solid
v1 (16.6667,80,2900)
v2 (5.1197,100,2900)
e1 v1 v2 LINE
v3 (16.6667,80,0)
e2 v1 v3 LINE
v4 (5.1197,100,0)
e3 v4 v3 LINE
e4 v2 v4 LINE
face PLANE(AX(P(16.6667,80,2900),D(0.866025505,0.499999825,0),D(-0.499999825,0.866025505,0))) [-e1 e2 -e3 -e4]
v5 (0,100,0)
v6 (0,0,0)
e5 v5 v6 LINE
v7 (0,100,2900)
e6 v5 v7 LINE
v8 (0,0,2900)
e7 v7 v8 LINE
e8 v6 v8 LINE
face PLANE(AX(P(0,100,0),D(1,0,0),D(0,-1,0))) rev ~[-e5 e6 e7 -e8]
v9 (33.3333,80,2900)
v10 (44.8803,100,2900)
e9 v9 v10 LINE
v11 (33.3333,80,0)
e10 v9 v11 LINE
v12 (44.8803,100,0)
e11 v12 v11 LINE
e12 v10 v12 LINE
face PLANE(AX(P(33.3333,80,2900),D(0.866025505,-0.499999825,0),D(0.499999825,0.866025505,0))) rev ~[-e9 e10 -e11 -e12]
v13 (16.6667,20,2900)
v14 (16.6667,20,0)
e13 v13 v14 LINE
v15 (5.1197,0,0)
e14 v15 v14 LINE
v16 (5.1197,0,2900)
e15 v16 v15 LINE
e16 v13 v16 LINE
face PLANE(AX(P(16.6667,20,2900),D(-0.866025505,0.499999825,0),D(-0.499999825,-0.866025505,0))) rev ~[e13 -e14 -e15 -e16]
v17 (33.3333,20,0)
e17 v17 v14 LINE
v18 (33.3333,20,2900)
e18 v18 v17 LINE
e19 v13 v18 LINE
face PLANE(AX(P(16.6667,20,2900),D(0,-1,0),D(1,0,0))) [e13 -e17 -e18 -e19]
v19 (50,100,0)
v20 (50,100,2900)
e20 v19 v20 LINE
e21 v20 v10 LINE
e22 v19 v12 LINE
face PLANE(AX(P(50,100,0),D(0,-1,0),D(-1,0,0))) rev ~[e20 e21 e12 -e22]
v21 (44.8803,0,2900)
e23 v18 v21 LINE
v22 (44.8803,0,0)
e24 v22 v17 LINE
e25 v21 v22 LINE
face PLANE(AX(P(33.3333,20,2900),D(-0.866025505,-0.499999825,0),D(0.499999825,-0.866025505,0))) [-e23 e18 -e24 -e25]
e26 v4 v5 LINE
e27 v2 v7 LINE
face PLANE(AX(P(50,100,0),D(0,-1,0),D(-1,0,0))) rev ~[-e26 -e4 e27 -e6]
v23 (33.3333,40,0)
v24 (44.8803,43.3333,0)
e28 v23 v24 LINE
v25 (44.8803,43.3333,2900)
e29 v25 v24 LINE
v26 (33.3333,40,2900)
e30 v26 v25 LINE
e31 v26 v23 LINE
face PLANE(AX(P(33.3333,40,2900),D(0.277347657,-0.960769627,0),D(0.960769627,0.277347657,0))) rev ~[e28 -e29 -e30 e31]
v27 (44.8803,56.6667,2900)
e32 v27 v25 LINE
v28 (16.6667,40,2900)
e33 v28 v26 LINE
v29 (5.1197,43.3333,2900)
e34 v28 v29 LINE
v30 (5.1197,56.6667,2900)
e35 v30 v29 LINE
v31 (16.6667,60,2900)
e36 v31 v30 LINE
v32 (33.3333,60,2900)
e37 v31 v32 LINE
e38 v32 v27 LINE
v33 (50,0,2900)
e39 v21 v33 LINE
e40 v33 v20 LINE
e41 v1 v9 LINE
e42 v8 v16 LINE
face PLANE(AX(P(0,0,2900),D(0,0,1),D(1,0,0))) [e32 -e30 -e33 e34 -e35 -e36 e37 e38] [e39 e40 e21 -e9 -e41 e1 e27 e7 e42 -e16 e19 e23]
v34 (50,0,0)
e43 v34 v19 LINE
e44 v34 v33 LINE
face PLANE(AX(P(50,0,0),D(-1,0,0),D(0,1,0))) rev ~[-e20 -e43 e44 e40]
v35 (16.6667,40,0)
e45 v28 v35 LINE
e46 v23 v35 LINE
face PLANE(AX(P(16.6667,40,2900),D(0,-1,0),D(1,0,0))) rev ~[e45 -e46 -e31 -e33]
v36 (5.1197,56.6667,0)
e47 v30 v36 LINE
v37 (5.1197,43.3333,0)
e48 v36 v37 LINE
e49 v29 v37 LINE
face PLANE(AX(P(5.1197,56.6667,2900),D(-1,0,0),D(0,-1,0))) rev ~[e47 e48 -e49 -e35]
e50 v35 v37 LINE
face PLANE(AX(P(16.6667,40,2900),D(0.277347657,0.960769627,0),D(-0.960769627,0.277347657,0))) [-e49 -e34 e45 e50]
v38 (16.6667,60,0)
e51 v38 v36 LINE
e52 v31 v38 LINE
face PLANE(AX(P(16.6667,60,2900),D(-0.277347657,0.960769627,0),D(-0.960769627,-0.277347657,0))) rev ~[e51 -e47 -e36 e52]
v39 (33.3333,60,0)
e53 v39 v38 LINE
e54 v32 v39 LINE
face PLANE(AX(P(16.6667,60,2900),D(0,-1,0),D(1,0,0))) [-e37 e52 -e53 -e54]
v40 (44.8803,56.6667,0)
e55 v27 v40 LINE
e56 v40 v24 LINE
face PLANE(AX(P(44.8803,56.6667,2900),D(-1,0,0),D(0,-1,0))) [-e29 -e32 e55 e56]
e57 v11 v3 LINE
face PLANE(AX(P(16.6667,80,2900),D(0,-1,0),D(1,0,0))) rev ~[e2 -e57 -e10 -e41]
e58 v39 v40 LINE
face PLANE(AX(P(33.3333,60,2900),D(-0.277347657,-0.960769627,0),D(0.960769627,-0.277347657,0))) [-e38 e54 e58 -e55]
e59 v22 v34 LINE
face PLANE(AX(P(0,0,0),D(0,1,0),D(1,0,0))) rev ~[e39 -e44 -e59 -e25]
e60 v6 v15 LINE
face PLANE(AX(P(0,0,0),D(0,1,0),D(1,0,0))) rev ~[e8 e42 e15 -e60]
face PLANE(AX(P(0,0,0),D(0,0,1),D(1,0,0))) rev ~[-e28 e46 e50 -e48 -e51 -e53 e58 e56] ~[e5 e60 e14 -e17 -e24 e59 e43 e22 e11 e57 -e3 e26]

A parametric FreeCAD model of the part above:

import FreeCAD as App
import Part
import Sketcher
from FreeCAD import Vector
Q = App.Units.Quantity

doc = App.newDocument("Part")
body = doc.addObject("PartDesign::Body", "Body")

# Sketch on XY plane
sketch1 = doc.addObject("Sketcher::SketchObject", "Sketch")
body.addObject(sketch1)
sketch1.AttachmentSupport = (doc.XY_Plane, [""])
sketch1.MapMode = "FlatFace"
sketch1.addGeometry(Part.LineSegment(Vector(0, 100, 0), Vector(0, 0, 0)), False)
sketch1.addGeometry(Part.LineSegment(Vector(0, 0, 0), Vector(50, 0, 0)), False)
sketch1.addGeometry(Part.LineSegment(Vector(50, 0, 0), Vector(50, 100, 0)), False)
sketch1.addGeometry(Part.LineSegment(Vector(50, 100, 0), Vector(0, 100, 0)), False)
sketch1.addConstraint(Sketcher.Constraint("Coincident", 0, 2, 1, 1))
sketch1.addConstraint(Sketcher.Constraint("Coincident", 1, 2, 2, 1))
sketch1.addConstraint(Sketcher.Constraint("Coincident", 2, 2, 3, 1))
sketch1.addConstraint(Sketcher.Constraint("Coincident", 3, 2, 0, 1))
sketch1.addConstraint(Sketcher.Constraint("Vertical", 0))
sketch1.addConstraint(Sketcher.Constraint("Horizontal", 1))
sketch1.addConstraint(Sketcher.Constraint("Vertical", 2))
sketch1.addConstraint(Sketcher.Constraint("Horizontal", 3))
sketch1.addConstraint(Sketcher.Constraint("Coincident", 0, 2, -1, 1))
sketch1.addConstraint(Sketcher.Constraint("DistanceX", 1, 1, 1, 2, 50.0))
sketch1.addConstraint(Sketcher.Constraint("DistanceY", 0, 2, 0, 1, 100.0))
pad1 = doc.addObject("PartDesign::Pad", "Pad")
body.addObject(pad1)
pad1.Profile = sketch1
pad1.Length = 2900

# Sketch on XY plane
sketch2 = doc.addObject("Sketcher::SketchObject", "Sketch001")
body.addObject(sketch2)
sketch2.AttachmentSupport = (doc.XY_Plane, [""])
sketch2.MapMode = "FlatFace"
sketch2.AttachmentOffset = App.Placement(Vector(0, 0, 2900), App.Rotation())
sketch2.addGeometry(Part.LineSegment(Vector(17, 20, 0), Vector(5, 0, 0)), False)
sketch2.addGeometry(Part.LineSegment(Vector(5, 0, 0), Vector(45, 0, 0)), False)
sketch2.addGeometry(Part.LineSegment(Vector(45, 0, 0), Vector(33, 20, 0)), False)
sketch2.addGeometry(Part.LineSegment(Vector(33, 20, 0), Vector(17, 20, 0)), False)
sketch2.addGeometry(Part.LineSegment(Vector(45, 100, 0), Vector(5, 100, 0)), False)
sketch2.addGeometry(Part.LineSegment(Vector(5, 100, 0), Vector(17, 80, 0)), False)
sketch2.addGeometry(Part.LineSegment(Vector(17, 80, 0), Vector(33, 80, 0)), False)
sketch2.addGeometry(Part.LineSegment(Vector(33, 80, 0), Vector(45, 100, 0)), False)
sketch2.addConstraint(Sketcher.Constraint("Coincident", 0, 2, 1, 1))
sketch2.addConstraint(Sketcher.Constraint("Coincident", 1, 2, 2, 1))
sketch2.addConstraint(Sketcher.Constraint("Coincident", 2, 2, 3, 1))
sketch2.addConstraint(Sketcher.Constraint("Coincident", 3, 2, 0, 1))
sketch2.addConstraint(Sketcher.Constraint("Coincident", 4, 2, 5, 1))
sketch2.addConstraint(Sketcher.Constraint("Coincident", 5, 2, 6, 1))
sketch2.addConstraint(Sketcher.Constraint("Coincident", 6, 2, 7, 1))
sketch2.addConstraint(Sketcher.Constraint("Coincident", 7, 2, 4, 1))
sketch2.addConstraint(Sketcher.Constraint("Horizontal", 1))
sketch2.addConstraint(Sketcher.Constraint("Horizontal", 3))
sketch2.addConstraint(Sketcher.Constraint("Horizontal", 4))
sketch2.addConstraint(Sketcher.Constraint("Horizontal", 6))
sketch2.addConstraint(Sketcher.Constraint("PointOnObject", 0, 2, -1))
sketch2.addConstraint(Sketcher.Constraint("Parallel", 2, 5))
sketch2.addConstraint(Sketcher.Constraint("Parallel", 0, 7))
sketch2.addConstraint(Sketcher.Constraint("Vertical", 0, 2, 4, 2))
sketch2.addConstraint(Sketcher.Constraint("Vertical", 3, 2, 5, 2))
sketch2.addConstraint(Sketcher.Constraint("Vertical", 2, 2, 6, 2))
sketch2.addConstraint(Sketcher.Constraint("Vertical", 1, 2, 7, 2))
sketch2.addConstraint(Sketcher.Constraint("Angle", 0, Q("-120 deg")))
sketch2.addConstraint(Sketcher.Constraint("DistanceY", -1, 1, 2, 2, 20.0))
sketch2.addConstraint(Sketcher.Constraint("DistanceY", -1, 1, 4, 2, 100.0))
sketch2.addConstraint(Sketcher.Constraint("DistanceX", 3, 2, 3, 1, 16.6666))
sketch2.addConstraint(Sketcher.Constraint("DistanceX", -1, 1, 3, 2, 16.6667))
pocket1 = doc.addObject("PartDesign::Pocket", "Pocket")
body.addObject(pocket1)
pocket1.Profile = sketch2
pocket1.Type = "UpToFirst"

# Sketch on XY plane
sketch3 = doc.addObject("Sketcher::SketchObject", "Sketch002")
body.addObject(sketch3)
sketch3.AttachmentSupport = (doc.XY_Plane, [""])
sketch3.MapMode = "FlatFace"
sketch3.AttachmentOffset = App.Placement(Vector(0, 0, 2900), App.Rotation())
sketch3.addGeometry(Part.LineSegment(Vector(17, 60, 0), Vector(5, 57, 0)), False)
sketch3.addGeometry(Part.LineSegment(Vector(5, 57, 0), Vector(5, 43, 0)), False)
sketch3.addGeometry(Part.LineSegment(Vector(5, 43, 0), Vector(17, 40, 0)), False)
sketch3.addGeometry(Part.LineSegment(Vector(17, 40, 0), Vector(33, 40, 0)), False)
sketch3.addGeometry(Part.LineSegment(Vector(33, 40, 0), Vector(45, 43, 0)), False)
sketch3.addGeometry(Part.LineSegment(Vector(45, 43, 0), Vector(45, 57, 0)), False)
sketch3.addGeometry(Part.LineSegment(Vector(45, 57, 0), Vector(33, 60, 0)), False)
sketch3.addGeometry(Part.LineSegment(Vector(33, 60, 0), Vector(17, 60, 0)), False)
sketch3.addConstraint(Sketcher.Constraint("Coincident", 0, 2, 1, 1))
sketch3.addConstraint(Sketcher.Constraint("Coincident", 1, 2, 2, 1))
sketch3.addConstraint(Sketcher.Constraint("Coincident", 2, 2, 3, 1))
sketch3.addConstraint(Sketcher.Constraint("Coincident", 3, 2, 4, 1))
sketch3.addConstraint(Sketcher.Constraint("Coincident", 4, 2, 5, 1))
sketch3.addConstraint(Sketcher.Constraint("Coincident", 5, 2, 6, 1))
sketch3.addConstraint(Sketcher.Constraint("Coincident", 6, 2, 7, 1))
sketch3.addConstraint(Sketcher.Constraint("Coincident", 7, 2, 0, 1))
sketch3.addConstraint(Sketcher.Constraint("Vertical", 1))
sketch3.addConstraint(Sketcher.Constraint("Horizontal", 3))
sketch3.addConstraint(Sketcher.Constraint("Vertical", 5))
sketch3.addConstraint(Sketcher.Constraint("Horizontal", 7))
sketch3.addConstraint(Sketcher.Constraint("Parallel", 0, 4))
sketch3.addConstraint(Sketcher.Constraint("Parallel", 2, 6))
sketch3.addConstraint(Sketcher.Constraint("Horizontal", 1, 2, 4, 2))
sketch3.addConstraint(Sketcher.Constraint("Horizontal", 0, 2, 5, 2))
sketch3.addConstraint(Sketcher.Constraint("Vertical", 3, 2, 6, 2))
sketch3.addConstraint(Sketcher.Constraint("Vertical", 2, 2, 7, 2))
sketch3.addConstraint(Sketcher.Constraint("DistanceY", -1, 1, 2, 2, 40.0))
sketch3.addConstraint(Sketcher.Constraint("DistanceY", 3, 2, 6, 2, 20.0))
sketch3.addConstraint(Sketcher.Constraint("DistanceX", 3, 1, 3, 2, 16.6666))
sketch3.addConstraint(Sketcher.Constraint("DistanceY", 1, 2, 1, 1, 13.3334))
sketch3.addConstraint(Sketcher.Constraint("DistanceX", -1, 1, 2, 2, 16.6667))
sketch3.addConstraint(Sketcher.Constraint("DistanceX", 1, 2, 2, 2, 11.547))
pocket2 = doc.addObject("PartDesign::Pocket", "Pocket001")
body.addObject(pocket2)
pocket2.Profile = sketch3
pocket2.Length = 2900

doc.recompute()
